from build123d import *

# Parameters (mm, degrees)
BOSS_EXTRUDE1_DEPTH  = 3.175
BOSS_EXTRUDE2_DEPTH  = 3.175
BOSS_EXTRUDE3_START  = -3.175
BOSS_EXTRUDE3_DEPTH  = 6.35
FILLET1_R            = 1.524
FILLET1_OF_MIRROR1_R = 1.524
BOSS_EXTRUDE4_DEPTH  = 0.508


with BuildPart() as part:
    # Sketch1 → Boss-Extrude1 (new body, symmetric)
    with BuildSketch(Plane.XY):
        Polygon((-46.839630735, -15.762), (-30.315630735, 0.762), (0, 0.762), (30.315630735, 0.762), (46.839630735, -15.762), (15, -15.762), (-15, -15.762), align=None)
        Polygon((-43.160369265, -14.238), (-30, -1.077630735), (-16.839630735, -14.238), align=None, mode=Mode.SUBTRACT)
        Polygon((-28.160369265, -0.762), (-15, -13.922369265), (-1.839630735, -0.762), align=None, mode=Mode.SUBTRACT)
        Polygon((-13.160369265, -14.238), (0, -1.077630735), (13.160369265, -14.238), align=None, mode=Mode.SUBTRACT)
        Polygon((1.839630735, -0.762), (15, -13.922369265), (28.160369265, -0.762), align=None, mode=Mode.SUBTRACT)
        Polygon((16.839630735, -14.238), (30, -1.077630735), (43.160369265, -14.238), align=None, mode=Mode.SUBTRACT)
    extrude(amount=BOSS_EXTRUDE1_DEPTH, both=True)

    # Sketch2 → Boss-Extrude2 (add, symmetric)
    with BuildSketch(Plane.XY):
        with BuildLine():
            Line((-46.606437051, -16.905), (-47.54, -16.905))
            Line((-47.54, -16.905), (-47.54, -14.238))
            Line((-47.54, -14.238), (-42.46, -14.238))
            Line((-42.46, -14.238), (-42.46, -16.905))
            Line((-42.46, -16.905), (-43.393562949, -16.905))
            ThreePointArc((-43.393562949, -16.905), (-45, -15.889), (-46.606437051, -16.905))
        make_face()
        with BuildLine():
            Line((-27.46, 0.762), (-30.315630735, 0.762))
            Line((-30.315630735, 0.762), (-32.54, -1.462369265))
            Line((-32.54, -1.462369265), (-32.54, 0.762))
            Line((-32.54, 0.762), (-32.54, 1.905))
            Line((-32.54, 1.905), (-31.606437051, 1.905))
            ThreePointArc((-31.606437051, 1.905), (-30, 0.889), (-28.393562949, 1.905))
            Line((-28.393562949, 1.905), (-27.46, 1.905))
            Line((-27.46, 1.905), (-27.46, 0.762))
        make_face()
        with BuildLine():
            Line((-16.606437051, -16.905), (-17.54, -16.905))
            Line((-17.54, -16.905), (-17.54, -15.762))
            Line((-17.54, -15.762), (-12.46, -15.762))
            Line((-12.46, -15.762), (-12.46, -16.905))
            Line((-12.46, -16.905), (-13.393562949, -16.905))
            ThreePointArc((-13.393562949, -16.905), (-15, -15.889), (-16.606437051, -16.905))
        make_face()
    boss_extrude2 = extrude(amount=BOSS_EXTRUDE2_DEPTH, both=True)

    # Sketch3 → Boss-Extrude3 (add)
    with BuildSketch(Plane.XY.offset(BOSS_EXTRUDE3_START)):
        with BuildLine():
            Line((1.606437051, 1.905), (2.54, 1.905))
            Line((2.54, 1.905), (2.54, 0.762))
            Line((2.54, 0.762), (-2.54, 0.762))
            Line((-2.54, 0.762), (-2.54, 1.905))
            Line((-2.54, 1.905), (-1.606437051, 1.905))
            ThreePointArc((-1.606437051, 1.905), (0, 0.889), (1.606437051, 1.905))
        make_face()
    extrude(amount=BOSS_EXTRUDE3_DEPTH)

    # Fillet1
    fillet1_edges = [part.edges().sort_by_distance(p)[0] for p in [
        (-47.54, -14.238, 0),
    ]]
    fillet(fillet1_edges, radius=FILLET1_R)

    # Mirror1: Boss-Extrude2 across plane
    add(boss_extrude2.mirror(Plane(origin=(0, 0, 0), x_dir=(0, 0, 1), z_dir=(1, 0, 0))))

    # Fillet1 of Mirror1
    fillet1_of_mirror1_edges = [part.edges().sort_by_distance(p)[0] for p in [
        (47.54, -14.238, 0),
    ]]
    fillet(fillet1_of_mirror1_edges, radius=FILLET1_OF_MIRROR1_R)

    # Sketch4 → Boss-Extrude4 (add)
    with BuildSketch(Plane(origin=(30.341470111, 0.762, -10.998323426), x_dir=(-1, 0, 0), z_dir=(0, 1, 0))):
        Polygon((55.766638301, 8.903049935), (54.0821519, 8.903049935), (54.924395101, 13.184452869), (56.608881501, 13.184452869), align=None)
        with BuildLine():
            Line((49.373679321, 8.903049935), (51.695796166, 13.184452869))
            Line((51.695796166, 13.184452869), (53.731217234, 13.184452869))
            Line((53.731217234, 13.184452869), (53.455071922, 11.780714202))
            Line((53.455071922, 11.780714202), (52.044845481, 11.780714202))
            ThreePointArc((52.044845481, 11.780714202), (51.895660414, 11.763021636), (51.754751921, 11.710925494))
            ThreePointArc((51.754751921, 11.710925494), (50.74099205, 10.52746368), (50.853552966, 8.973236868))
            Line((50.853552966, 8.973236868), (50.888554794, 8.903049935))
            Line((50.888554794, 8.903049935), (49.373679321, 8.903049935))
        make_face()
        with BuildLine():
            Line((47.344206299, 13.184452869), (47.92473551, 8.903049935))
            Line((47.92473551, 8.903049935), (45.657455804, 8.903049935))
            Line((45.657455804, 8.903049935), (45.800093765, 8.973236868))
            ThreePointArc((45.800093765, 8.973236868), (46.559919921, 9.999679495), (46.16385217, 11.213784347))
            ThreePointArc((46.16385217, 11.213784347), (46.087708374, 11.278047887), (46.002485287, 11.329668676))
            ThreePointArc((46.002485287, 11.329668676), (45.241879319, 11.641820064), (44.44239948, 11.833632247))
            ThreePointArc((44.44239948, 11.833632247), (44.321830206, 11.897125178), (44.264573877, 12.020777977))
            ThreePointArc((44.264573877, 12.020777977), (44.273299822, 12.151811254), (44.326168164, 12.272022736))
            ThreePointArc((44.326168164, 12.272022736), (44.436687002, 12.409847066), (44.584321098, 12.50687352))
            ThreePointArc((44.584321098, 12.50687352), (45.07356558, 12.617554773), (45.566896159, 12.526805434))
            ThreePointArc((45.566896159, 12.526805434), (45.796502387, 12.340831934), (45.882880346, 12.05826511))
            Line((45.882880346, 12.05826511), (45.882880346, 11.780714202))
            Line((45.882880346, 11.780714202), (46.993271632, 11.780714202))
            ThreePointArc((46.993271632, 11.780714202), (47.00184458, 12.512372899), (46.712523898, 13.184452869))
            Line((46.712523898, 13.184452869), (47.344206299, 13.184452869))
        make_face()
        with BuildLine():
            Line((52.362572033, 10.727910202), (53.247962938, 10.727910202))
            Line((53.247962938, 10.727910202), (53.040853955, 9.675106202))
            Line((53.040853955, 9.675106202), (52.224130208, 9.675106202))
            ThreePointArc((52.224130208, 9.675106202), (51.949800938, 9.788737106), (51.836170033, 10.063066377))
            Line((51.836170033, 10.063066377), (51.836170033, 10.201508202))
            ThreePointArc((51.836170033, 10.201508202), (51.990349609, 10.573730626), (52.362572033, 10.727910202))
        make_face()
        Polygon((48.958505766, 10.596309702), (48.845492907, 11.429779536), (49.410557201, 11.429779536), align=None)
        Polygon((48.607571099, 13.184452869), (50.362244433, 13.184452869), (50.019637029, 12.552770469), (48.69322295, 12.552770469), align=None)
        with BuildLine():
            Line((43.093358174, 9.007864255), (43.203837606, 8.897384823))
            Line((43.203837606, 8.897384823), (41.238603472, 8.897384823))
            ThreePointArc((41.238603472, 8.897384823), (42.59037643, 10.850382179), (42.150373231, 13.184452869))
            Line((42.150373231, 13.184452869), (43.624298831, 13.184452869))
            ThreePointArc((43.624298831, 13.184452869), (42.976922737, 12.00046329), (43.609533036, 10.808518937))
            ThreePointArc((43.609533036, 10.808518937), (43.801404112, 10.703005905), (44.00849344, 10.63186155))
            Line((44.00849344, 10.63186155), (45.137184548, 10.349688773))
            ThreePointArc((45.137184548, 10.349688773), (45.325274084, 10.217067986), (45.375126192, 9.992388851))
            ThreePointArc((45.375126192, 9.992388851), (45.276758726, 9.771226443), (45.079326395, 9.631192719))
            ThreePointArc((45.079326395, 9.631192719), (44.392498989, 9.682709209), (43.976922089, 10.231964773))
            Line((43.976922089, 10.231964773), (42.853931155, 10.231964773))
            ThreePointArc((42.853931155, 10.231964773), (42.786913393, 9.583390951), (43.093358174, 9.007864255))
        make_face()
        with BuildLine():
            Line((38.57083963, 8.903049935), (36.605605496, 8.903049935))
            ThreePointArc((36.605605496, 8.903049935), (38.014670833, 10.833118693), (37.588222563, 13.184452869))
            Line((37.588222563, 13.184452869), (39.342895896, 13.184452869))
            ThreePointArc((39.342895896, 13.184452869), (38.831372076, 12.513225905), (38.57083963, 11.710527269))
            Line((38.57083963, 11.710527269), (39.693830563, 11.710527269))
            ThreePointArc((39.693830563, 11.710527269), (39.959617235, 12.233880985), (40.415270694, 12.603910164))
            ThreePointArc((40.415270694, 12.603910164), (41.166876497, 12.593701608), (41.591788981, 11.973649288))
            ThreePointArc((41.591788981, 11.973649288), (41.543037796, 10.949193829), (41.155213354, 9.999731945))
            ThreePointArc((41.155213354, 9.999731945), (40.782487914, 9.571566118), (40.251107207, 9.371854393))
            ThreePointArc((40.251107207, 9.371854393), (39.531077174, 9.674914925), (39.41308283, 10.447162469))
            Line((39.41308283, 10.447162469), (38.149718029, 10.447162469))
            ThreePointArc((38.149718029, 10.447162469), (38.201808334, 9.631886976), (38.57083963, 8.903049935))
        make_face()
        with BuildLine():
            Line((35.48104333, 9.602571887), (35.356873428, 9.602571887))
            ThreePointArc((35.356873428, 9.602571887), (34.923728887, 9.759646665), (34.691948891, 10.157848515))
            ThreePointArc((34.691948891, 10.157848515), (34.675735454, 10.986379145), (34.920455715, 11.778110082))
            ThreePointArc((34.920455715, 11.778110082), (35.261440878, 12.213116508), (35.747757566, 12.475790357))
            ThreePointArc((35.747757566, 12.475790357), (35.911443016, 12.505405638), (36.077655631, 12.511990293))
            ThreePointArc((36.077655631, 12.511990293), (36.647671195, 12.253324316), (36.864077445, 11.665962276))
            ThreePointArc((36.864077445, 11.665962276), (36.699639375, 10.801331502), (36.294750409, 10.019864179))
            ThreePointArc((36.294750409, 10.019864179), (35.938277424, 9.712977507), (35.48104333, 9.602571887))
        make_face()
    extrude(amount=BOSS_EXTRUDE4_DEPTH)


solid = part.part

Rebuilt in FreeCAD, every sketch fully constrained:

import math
import FreeCAD as App
import Part
import Sketcher

V = App.Vector
Q = App.Units.Quantity


def edges_at(feature, points):
    """Names of the edges that pass closest to the given points."""
    edges = feature.Shape.Edges
    near = lambda p: min(range(len(edges)), key=lambda i: edges[i].distToShape(Part.Vertex(*p))[0])
    return sorted({f"Edge{near(p) + 1}" for p in points})

doc = App.newDocument("Part")
params = doc.addObject("Spreadsheet::Sheet", "Params")
for row, (alias, value) in enumerate([
    ("pad1_length", "0.25 in"),
    ("sketch2_radius", "0.07 in"),
    ("sketch2_width", "0.2 in"),
    ("sketch2_height", "0.105 in"),
    ("sketch2_height2", "0.045 in"),
    ("pad2_length", "0.25 in"),
    ("sketch3_radius", "0.07 in"),
    ("sketch3_width", "0.2 in"),
    ("sketch3_height", "0.045 in"),
    ("pad3_length", "0.25 in"),
    ("fillet_radius", "0.06 in"),
    ("fillet2_radius", "0.06 in"),
    ("pad4_length", "0.02 in"),
], start=1):
    params.set(f"A{row}", alias)
    params.set(f"B{row}", "=" + value)
    params.setAlias(f"B{row}", alias)

body = doc.addObject("PartDesign::Body", "Body")

# Sketch on XY plane
sketch1 = body.newObject("Sketcher::SketchObject", "Sketch")
sketch1.AttachmentSupport = (doc.getObject("XY_Plane"), [""])
sketch1.MapMode = "FlatFace"
sketch1.addGeometry([
    Part.LineSegment(V(-30, 1, 0), V(-47, -16, 0)),  # 0
    Part.LineSegment(V(-47, -16, 0), V(47, -16, 0)),  # 1
    Part.LineSegment(V(47, -16, 0), V(30, 1, 0)),  # 2
    Part.LineSegment(V(30, 1, 0), V(-30, 1, 0)),  # 3
    Part.LineSegment(V(17, -14, 0), V(30, -1, 0)),  # 4
    Part.LineSegment(V(30, -1, 0), V(43, -14, 0)),  # 5
    Part.LineSegment(V(43, -14, 0), V(17, -14, 0)),  # 6
    Part.LineSegment(V(-13, -14, 0), V(0, -1, 0)),  # 7
    Part.LineSegment(V(0, -1, 0), V(13, -14, 0)),  # 8
    Part.LineSegment(V(13, -14, 0), V(-13, -14, 0)),  # 9
    Part.LineSegment(V(-43, -14, 0), V(-30, -1, 0)),  # 10
    Part.LineSegment(V(-30, -1, 0), V(-17, -14, 0)),  # 11
    Part.LineSegment(V(-17, -14, 0), V(-43, -14, 0)),  # 12
    Part.LineSegment(V(2, -1, 0), V(28, -1, 0)),  # 13
    Part.LineSegment(V(28, -1, 0), V(15, -14, 0)),  # 14
    Part.LineSegment(V(15, -14, 0), V(2, -1, 0)),  # 15
    Part.LineSegment(V(-28, -1, 0), V(-2, -1, 0)),  # 16
    Part.LineSegment(V(-2, -1, 0), V(-15, -14, 0)),  # 17
    Part.LineSegment(V(-15, -14, 0), V(-28, -1, 0)),  # 18
], False)
sketch1.addConstraint([
    Sketcher.Constraint("Coincident", 0, 2, 1, 1),
    Sketcher.Constraint("Coincident", 1, 2, 2, 1),
    Sketcher.Constraint("Coincident", 2, 2, 3, 1),
    Sketcher.Constraint("Coincident", 3, 2, 0, 1),
    Sketcher.Constraint("Coincident", 4, 2, 5, 1),
    Sketcher.Constraint("Coincident", 5, 2, 6, 1),
    Sketcher.Constraint("Coincident", 6, 2, 4, 1),
    Sketcher.Constraint("Coincident", 7, 2, 8, 1),
    Sketcher.Constraint("Coincident", 8, 2, 9, 1),
    Sketcher.Constraint("Coincident", 9, 2, 7, 1),
    Sketcher.Constraint("Coincident", 10, 2, 11, 1),
    Sketcher.Constraint("Coincident", 11, 2, 12, 1),
    Sketcher.Constraint("Coincident", 12, 2, 10, 1),
    Sketcher.Constraint("Coincident", 13, 2, 14, 1),
    Sketcher.Constraint("Coincident", 14, 2, 15, 1),
    Sketcher.Constraint("Coincident", 15, 2, 13, 1),
    Sketcher.Constraint("Coincident", 16, 2, 17, 1),
    Sketcher.Constraint("Coincident", 17, 2, 18, 1),
    Sketcher.Constraint("Coincident", 18, 2, 16, 1),
    Sketcher.Constraint("Horizontal", 1),
    Sketcher.Constraint("Horizontal", 3),
    Sketcher.Constraint("Horizontal", 6),
    Sketcher.Constraint("Horizontal", 9),
    Sketcher.Constraint("Horizontal", 12),
    Sketcher.Constraint("Horizontal", 13),
    Sketcher.Constraint("Horizontal", 16),
    Sketcher.Constraint("Symmetric", 4, 2, 10, 2, -2),
    Sketcher.Constraint("Symmetric", 6, 2, 11, 2, -2),
    Sketcher.Constraint("Symmetric", 15, 2, 16, 2, -2),
    Sketcher.Constraint("Symmetric", 14, 2, 17, 2, -2),
    Sketcher.Constraint("PointOnObject", 7, 2, -2),
    Sketcher.Constraint("Perpendicular", 0, 2),
    Sketcher.Constraint("Perpendicular", 2, 4),
    Sketcher.Constraint("Perpendicular", 4, 5),
    Sketcher.Constraint("Perpendicular", 5, 7),
    Sketcher.Constraint("Perpendicular", 7, 8),
    Sketcher.Constraint("Perpendicular", 8, 10),
    Sketcher.Constraint("Perpendicular", 10, 11),
    Sketcher.Constraint("Perpendicular", 11, 14),
    Sketcher.Constraint("Perpendicular", 14, 15),
    Sketcher.Constraint("Perpendicular", 17, 18),
    Sketcher.Constraint("Horizontal", 4, 2, 7, 2),
    Sketcher.Constraint("Horizontal", 6, 2, 8, 2),
    Sketcher.Constraint("Equal", 12, 13),
    Sketcher.Constraint("DistanceY", -1, 1, 2, 2, Q("0.03 in")),
    Sketcher.Constraint("DistanceY", 13, 2, -1, 1, Q("0.03 in")),
    Sketcher.Constraint("DistanceY", 1, 2, 5, 2, Q("0.06 in")),
    Sketcher.Constraint("DistanceX", 1, 1, 1, 2, 93.679261),
    Sketcher.Constraint("DistanceX", 3, 2, 3, 1, 60.631261),
    Sketcher.Constraint("DistanceX", 6, 2, 6, 1, 26.320739),
    Sketcher.Constraint("DistanceX", -1, 1, 4, 2, 30.0),
    Sketcher.Constraint("DistanceX", -1, 1, 14, 2, 15.0),
    Sketcher.Constraint("DistanceX", 3, 2, 5, 2, 73.476),
])
pad1 = body.newObject("PartDesign::Pad", "Pad")
pad1.Profile = sketch1
pad1.setExpression("Length", "Params.pad1_length")
pad1.Midplane = True

# Sketch on XY plane
sketch2 = body.newObject("Sketcher::SketchObject", "Sketch001")
sketch2.AttachmentSupport = (doc.getObject("XY_Plane"), [""])
sketch2.MapMode = "FlatFace"
sketch2.addGeometry([
    Part.LineSegment(V(-47.5, -16.9, 0), V(-46.6, -16.9, 0)),  # 0
    Part.ArcOfCircle(Part.Circle(V(-45, -17.7, 0), V(0, 0, 1), 1.8), math.radians(25), math.radians(155)),  # 1
    Part.LineSegment(V(-43.4, -16.9, 0), V(-42.5, -16.9, 0)),  # 2
    Part.LineSegment(V(-42.5, -16.9, 0), V(-42.5, -14.2, 0)),  # 3
    Part.LineSegment(V(-42.5, -14.2, 0), V(-47.5, -14.2, 0)),  # 4
    Part.LineSegment(V(-47.5, -14.2, 0), V(-47.5, -16.9, 0)),  # 5
    Part.LineSegment(V(-30.3, 0.8, 0), V(-27.5, 0.8, 0)),  # 6
    Part.LineSegment(V(-27.5, 0.8, 0), V(-27.5, 1.9, 0)),  # 7
    Part.LineSegment(V(-27.5, 1.9, 0), V(-28.4, 1.9, 0)),  # 8
    Part.ArcOfCircle(Part.Circle(V(-30, 2.7, 0), V(0, 0, 1), 1.8), math.radians(-155), math.radians(-25)),  # 9
    Part.LineSegment(V(-31.6, 1.9, 0), V(-32.5, 1.9, 0)),  # 10
    Part.LineSegment(V(-32.5, 1.9, 0), V(-32.5, -1.5, 0)),  # 11
    Part.LineSegment(V(-32.5, -1.5, 0), V(-30.3, 0.8, 0)),  # 12
    Part.LineSegment(V(-17.5, -16.9, 0), V(-16.6, -16.9, 0)),  # 13
    Part.ArcOfCircle(Part.Circle(V(-15, -17.7, 0), V(0, 0, 1), 1.8), math.radians(25), math.radians(155)),  # 14
    Part.LineSegment(V(-13.4, -16.9, 0), V(-12.5, -16.9, 0)),  # 15
    Part.LineSegment(V(-12.5, -16.9, 0), V(-12.5, -15.8, 0)),  # 16
    Part.LineSegment(V(-12.5, -15.8, 0), V(-17.5, -15.8, 0)),  # 17
    Part.LineSegment(V(-17.5, -15.8, 0), V(-17.5, -16.9, 0)),  # 18
], False)
sketch2.addConstraint([
    Sketcher.Constraint("Coincident", 0, 2, 1, 2),
    Sketcher.Constraint("Coincident", 1, 1, 2, 1),
    Sketcher.Constraint("Coincident", 2, 2, 3, 1),
    Sketcher.Constraint("Coincident", 3, 2, 4, 1),
    Sketcher.Constraint("Coincident", 4, 2, 5, 1),
    Sketcher.Constraint("Coincident", 5, 2, 0, 1),
    Sketcher.Constraint("Coincident", 6, 2, 7, 1),
    Sketcher.Constraint("Coincident", 7, 2, 8, 1),
    Sketcher.Constraint("Coincident", 8, 2, 9, 2),
    Sketcher.Constraint("Coincident", 9, 1, 10, 1),
    Sketcher.Constraint("Coincident", 10, 2, 11, 1),
    Sketcher.Constraint("Coincident", 11, 2, 12, 1),
    Sketcher.Constraint("Coincident", 12, 2, 6, 1),
    Sketcher.Constraint("Coincident", 13, 2, 14, 2),
    Sketcher.Constraint("Coincident", 14, 1, 15, 1),
    Sketcher.Constraint("Coincident", 15, 2, 16, 1),
    Sketcher.Constraint("Coincident", 16, 2, 17, 1),
    Sketcher.Constraint("Coincident", 17, 2, 18, 1),
    Sketcher.Constraint("Coincident", 18, 2, 13, 1),
    Sketcher.Constraint("Horizontal", 0),
    Sketcher.Constraint("Horizontal", 2),
    Sketcher.Constraint("Vertical", 3),
    Sketcher.Constraint("Horizontal", 4),
    Sketcher.Constraint("Vertical", 5),
    Sketcher.Constraint("Horizontal", 6),
    Sketcher.Constraint("Vertical", 7),
    Sketcher.Constraint("Horizontal", 8),
    Sketcher.Constraint("Horizontal", 10),
    Sketcher.Constraint("Vertical", 11),
    Sketcher.Constraint("Horizontal", 13),
    Sketcher.Constraint("Horizontal", 15),
    Sketcher.Constraint("Vertical", 16),
    Sketcher.Constraint("Horizontal", 17),
    Sketcher.Constraint("Vertical", 18),
    Sketcher.Constraint("Equal", 1, 9),
    Sketcher.Constraint("Equal", 9, 14),
    Sketcher.Constraint("Horizontal", 1, 3, 14, 3),
    Sketcher.Constraint("Horizontal", 0, 2, 1, 1),
    Sketcher.Constraint("Horizontal", 8, 2, 9, 1),
    Sketcher.Constraint("Horizontal", 5, 2, 13, 2),
    Sketcher.Constraint("Horizontal", 13, 2, 14, 1),
    Sketcher.Constraint("Equal", 0, 2),
    Sketcher.Constraint("Equal", 2, 8),
    Sketcher.Constraint("Equal", 8, 10),
    Sketcher.Constraint("Equal", 10, 13),
    Sketcher.Constraint("Equal", 13, 15),
    Sketcher.Constraint("Equal", 7, 16),
    Sketcher.Constraint("Radius", 1, Q("0.07 in")),
    Sketcher.Constraint("DistanceX", 4, 2, 4, 1, Q("0.2 in")),
    Sketcher.Constraint("Angle", 12, Q("45 deg")),
    Sketcher.Constraint("DistanceX", 9, 3, 6, 2, Q("0.1 in")),
    Sketcher.Constraint("DistanceY", 3, 1, 3, 2, Q("0.105 in")),
    Sketcher.Constraint("DistanceY", 7, 1, 7, 2, Q("0.045 in")),
    Sketcher.Constraint("DistanceY", -1, 1, 6, 2, Q("0.03 in")),
    Sketcher.Constraint("DistanceY", 1, 3, 0, 2, Q("0.03 in")),
    Sketcher.Constraint("DistanceX", 6, 1, 6, 2, 2.855631),
    Sketcher.Constraint("DistanceX", 1, 3, -1, 1, 45.0),
    Sketcher.Constraint("DistanceY", 1, 3, -1, 1, 17.667),
    Sketcher.Constraint("DistanceX", 9, 3, -1, 1, 30.0),
    Sketcher.Constraint("DistanceX", 14, 3, -1, 1, 15.0),
])
sketch2.setExpression("Constraints[47]", "Params.sketch2_radius")
sketch2.setExpression("Constraints[48]", "Params.sketch2_width")
sketch2.setExpression("Constraints[51]", "Params.sketch2_height")
sketch2.setExpression("Constraints[52]", "Params.sketch2_height2")
pad2 = body.newObject("PartDesign::Pad", "Pad001")
pad2.Profile = sketch2
pad2.setExpression("Length", "Params.pad2_length")
pad2.Midplane = True

# Sketch on XY plane
sketch3 = body.newObject("Sketcher::SketchObject", "Sketch002")
sketch3.AttachmentSupport = (doc.getObject("XY_Plane"), [""])
sketch3.MapMode = "FlatFace"
sketch3.AttachmentOffset = App.Placement(V(0, 0, -0.125 * 25.4), App.Rotation())
sketch3.addGeometry([
    Part.LineSegment(V(2.5, 1.9, 0), V(1.6, 1.9, 0)),  # 0
    Part.ArcOfCircle(Part.Circle(V(0, 2.7, 0), V(0, 0, 1), 1.8), math.radians(-155), math.radians(-25)),  # 1
    Part.LineSegment(V(-1.6, 1.9, 0), V(-2.5, 1.9, 0)),  # 2
    Part.LineSegment(V(-2.5, 1.9, 0), V(-2.5, 0.8, 0)),  # 3
    Part.LineSegment(V(-2.5, 0.8, 0), V(2.5, 0.8, 0)),  # 4
    Part.LineSegment(V(2.5, 0.8, 0), V(2.5, 1.9, 0)),  # 5
], False)
sketch3.addConstraint([
    Sketcher.Constraint("Coincident", 0, 2, 1, 2),
    Sketcher.Constraint("Coincident", 1, 1, 2, 1),
    Sketcher.Constraint("Coincident", 2, 2, 3, 1),
    Sketcher.Constraint("Coincident", 3, 2, 4, 1),
    Sketcher.Constraint("Coincident", 4, 2, 5, 1),
    Sketcher.Constraint("Coincident", 5, 2, 0, 1),
    Sketcher.Constraint("Horizontal", 0),
    Sketcher.Constraint("Horizontal", 2),
    Sketcher.Constraint("Vertical", 3),
    Sketcher.Constraint("Horizontal", 4),
    Sketcher.Constraint("Vertical", 5),
    Sketcher.Constraint("Symmetric", 0, 2, 1, 1, -2),
    Sketcher.Constraint("Equal", 0, 2),
    Sketcher.Constraint("Radius", 1, Q("0.07 in")),
    Sketcher.Constraint("DistanceX", 4, 1, 4, 2, Q("0.2 in")),
    Sketcher.Constraint("DistanceY", 3, 2, 3, 1, Q("0.045 in")),
    Sketcher.Constraint("DistanceY", -1, 1, 3, 2, Q("0.03 in")),
    Sketcher.Constraint("DistanceY", 0, 2, 1, 3, Q("0.03 in")),
])
sketch3.setExpression("Constraints[13]", "Params.sketch3_radius")
sketch3.setExpression("Constraints[14]", "Params.sketch3_width")
sketch3.setExpression("Constraints[15]", "Params.sketch3_height")
pad3 = body.newObject("PartDesign::Pad", "Pad002")
pad3.Profile = sketch3
pad3.setExpression("Length", "Params.pad3_length")
doc.recompute()

fillet = body.newObject("PartDesign::Fillet", "Fillet")
fillet.Base = (pad3, edges_at(pad3, [(-47.54, -14.238, 0)]))
fillet.setExpression("Radius", "Params.fillet_radius")
doc.recompute()

mirrored = body.newObject("PartDesign::Mirrored", "Mirrored")
mirrored.Originals = [pad2]
mirrored.MirrorPlane = (doc.getObject("YZ_Plane"), [""])
body.Tip = mirrored
doc.recompute()

fillet2 = body.newObject("PartDesign::Fillet", "Fillet001")
fillet2.Base = (mirrored, edges_at(mirrored, [(47.54, -14.238, 0)]))
fillet2.setExpression("Radius", "Params.fillet2_radius")

# Sketch on XZ plane
sketch4 = body.newObject("Sketcher::SketchObject", "Sketch003")
sketch4.AttachmentSupport = (doc.getObject("XZ_Plane"), [""])
sketch4.MapMode = "FlatFace"
sketch4.AttachmentOffset = App.Placement(V(0, 0, -0.03 * 25.4), App.Rotation())
sketch4.addGeometry([
    Part.LineSegment(V(-23.740682, -2.095273, 0), V(-25.425168, -2.095273, 0)),  # 0
    Part.LineSegment(V(-25.425168, -2.095273, 0), V(-26.267411, 2.186129, 0)),  # 1
    Part.LineSegment(V(-26.267411, 2.186129, 0), V(-24.582925, 2.186129, 0)),  # 2
    Part.LineSegment(V(-24.582925, 2.186129, 0), V(-23.740682, -2.095273, 0)),  # 3
    Part.LineSegment(V(-21.354326, 2.186129, 0), V(-19.032209, -2.095273, 0)),  # 4
    Part.LineSegment(V(-19.032209, -2.095273, 0), V(-20.547085, -2.095273, 0)),  # 5
    Part.LineSegment(V(-20.547085, -2.095273, 0), V(-20.512083, -2.025087, 0)),  # 6
    Part.ArcOfCircle(Part.Circle(V(-22.344691, -1.111175, 0), V(0, 0, 1), 2.047849), math.radians(-26.505174), math.radians(62.946445)),  # 7
    Part.ArcOfCircle(Part.Circle(V(-21.703375, 0.144575, 0), V(0, 0, 1), 0.637816), math.radians(62.946445), math.radians(90)),  # 8
    Part.LineSegment(V(-21.703375, 0.782391, 0), V(-23.113602, 0.782391, 0)),  # 9
    Part.LineSegment(V(-23.113602, 0.782391, 0), V(-23.389747, 2.186129, 0)),  # 10
    Part.LineSegment(V(-23.389747, 2.186129, 0), V(-21.354326, 2.186129, 0)),  # 11
    Part.LineSegment(V(-17.583265, -2.095273, 0), V(-17.002736, 2.186129, 0)),  # 12
    Part.LineSegment(V(-17.002736, 2.186129, 0), V(-16.371054, 2.186129, 0)),  # 13
    Part.ArcOfCircle(Part.Circle(V(-14.932222, 1.168419, 0), V(0, 0, 1), 1.762377), math.radians(144.727578), math.radians(192.652557)),  # 14
    Part.LineSegment(V(-16.651802, 0.782391, 0), V(-15.54141, 0.782391, 0)),  # 15
    Part.LineSegment(V(-15.54141, 0.782391, 0), V(-15.54141, 1.059942, 0)),  # 16
    Part.ArcOfCircle(Part.Circle(V(-15.036043, 1.059942, 0), V(0, 0, 1), 0.505367), math.radians(112.008448), math.radians(180)),  # 17
    Part.ArcOfCircle(Part.Circle(V(-14.757424, 0.370628, 0), V(0, 0, 1), 1.248861), math.radians(65.667337), math.radians(112.008448)),  # 18
    Part.ArcOfCircle(Part.Circle(V(-14.476007, 0.992952, 0), V(0, 0, 1), 0.565865), math.radians(29.744881), math.radians(65.667337)),  # 19
    Part.ArcOfCircle(Part.Circle(V(-14.300367, 1.063139, 0), V(0, 0, 1), 0.379451), math.radians(-6.154974), math.radians(33.704494)),  # 20
    Part.ArcOfCircle(Part.Circle(V(-14.134484, 1.04525, 0), V(0, 0, 1), 0.212605), math.radians(-80.919383), math.radians(-6.154974)),  # 21
    Part.ArcOfCircle(Part.Circle(V(-13.257336, -4.442853, 0), V(0, 0, 1), 5.345152), math.radians(99.080617), math.radians(116.724011)),  # 22
    Part.ArcOfCircle(Part.Circle(V(-15.374193, -0.238341, 0), V(0, 0, 1), 0.637816), math.radians(116.724012), math.radians(134.643415)),  # 23
    Part.ArcOfCircle(Part.Circle(V(-14.843725, -0.775454, 0), V(0, 0, 1), 1.392725), math.radians(134.643416), math.radians(243.799885)),  # 24
    Part.LineSegment(V(-15.458624, -2.025087, 0), V(-15.315986, -2.095273, 0)),  # 25
    Part.LineSegment(V(-15.315986, -2.095273, 0), V(-17.583265, -2.095273, 0)),  # 26
    Part.LineSegment(V(-22.906493, -0.270413, 0), V(-22.021102, -0.270413, 0)),  # 27
    Part.ArcOfCircle(Part.Circle(V(-22.021102, -0.796815, 0), V(0, 0, 1), 0.526402), math.radians(0), math.radians(90)),  # 28
    Part.LineSegment(V(-21.4947, -0.796815, 0), V(-21.4947, -0.935257, 0)),  # 29
    Part.ArcOfCircle(Part.Circle(V(-21.88266, -0.935257, 0), V(0, 0, 1), 0.38796), math.radians(-90), math.radians(0)),  # 30
    Part.LineSegment(V(-21.88266, -1.323217, 0), V(-22.699384, -1.323217, 0)),  # 31
    Part.LineSegment(V(-22.699384, -1.323217, 0), V(-22.906493, -0.270413, 0)),  # 32
    Part.LineSegment(V(-18.504023, 0.431456, 0), V(-18.617036, -0.402014, 0)),  # 33
    Part.LineSegment(V(-18.617036, -0.402014, 0), V(-19.069087, 0.431456, 0)),  # 34
    Part.LineSegment(V(-19.069087, 0.431456, 0), V(-18.504023, 0.431456, 0)),  # 35
    Part.LineSegment(V(-20.020774, 2.186129, 0), V(-18.266101, 2.186129, 0)),  # 36
    Part.LineSegment(V(-18.266101, 2.186129, 0), V(-18.351753, 1.554447, 0)),  # 37
    Part.LineSegment(V(-18.351753, 1.554447, 0), V(-19.678167, 1.554447, 0)),  # 38
    Part.LineSegment(V(-19.678167, 1.554447, 0), V(-20.020774, 2.186129, 0)),  # 39
    Part.LineSegment(V(-12.862367, -2.100939, 0), V(-12.751888, -1.990459, 0)),  # 40
    Part.ArcOfCircle(Part.Circle(V(-13.541869, -1.200478, 0), V(0, 0, 1), 1.117202), math.radians(-45), math.radians(22.865988)),  # 41
    Part.LineSegment(V(-12.512461, -0.766359, 0), V(-13.635452, -0.766359, 0)),  # 42
    Part.ArcOfCircle(Part.Circle(V(-14.451493, -0.580772, 0), V(0, 0, 1), 0.836878), math.radians(-110.009807), math.radians(-12.812494)),  # 43
    Part.ArcOfCircle(Part.Circle(V(-14.581287, -0.937189, 0), V(0, 0, 1), 0.457563), math.radians(-171.359007), math.radians(-110.009807)),  # 44
    Part.ArcOfCircle(Part.Circle(V(-14.718368, -0.958021, 0), V(0, 0, 1), 0.318908), math.radians(104.036243), math.radians(188.640993)),  # 45
    Part.LineSegment(V(-14.795714, -0.648635, 0), V(-13.667023, -0.366462, 0)),  # 46
    Part.ArcOfCircle(Part.Circle(V(-13.97641, 0.871083, 0), V(0, 0, 1), 1.275632), math.radians(-75.963757), math.radians(-56.269266)),  # 47
    Part.ArcOfCircle(Part.Circle(V(-14.058012, 0.993299, 0), V(0, 0, 1), 1.422587), math.radians(-56.269266), math.radians(56.981413)),  # 48
    Part.LineSegment(V(-13.282829, 2.186129, 0), V(-11.808903, 2.186129, 0)),  # 49
    Part.ArcOfCircle(Part.Circle(V(-9.236614, 0.49271, 0), V(0, 0, 1), 3.079665), math.radians(146.641829), math.radians(237.371605)),  # 50
    Part.LineSegment(V(-10.897133, -2.100939, 0), V(-12.862367, -2.100939, 0)),  # 51
    Part.LineSegment(V(-6.264135, -2.095273, 0), V(-8.22937, -2.095273, 0)),  # 52
    Part.ArcOfCircle(Part.Circle(V(-9.820273, -0.831909, 0), V(0, 0, 1), 2.031518), math.radians(-38.453709), math.radians(7.943472)),  # 53
    Part.LineSegment(V(-7.808248, -0.551161, 0), V(-9.071613, -0.551161, 0)),  # 54
    Part.ArcOfCircle(Part.Circle(V(-9.820273, -0.831909, 0), V(0, 0, 1), 0.79957), math.radians(-96.417058), math.radians(20.556045)),  # 55
    Part.ArcOfCircle(Part.Circle(V(-9.780148, -0.475145, 0), V(0, 0, 1), 1.158583), math.radians(-153.140833), math.radians(-96.417058)),  # 56
    Part.ArcOfCircle(Part.Circle(V(-8.244006, 0.605001, 0), V(0, 0, 1), 3.029036), math.radians(172.977541), math.radians(211.965387)),  # 57
    Part.ArcOfCircle(Part.Circle(V(-10.439756, 0.875479, 0), V(0, 0, 1), 0.816689), math.radians(63.378369), math.radians(172.977541)),  # 58
    Part.ArcOfCircle(Part.Circle(V(-10.716526, 0.348576, 0), V(0, 0, 1), 1.411797), math.radians(14.925561), math.radians(62.918785)),  # 59
    Part.LineSegment(V(-9.35236, 0.712204, 0), V(-8.22937, 0.712204, 0)),  # 60
    Part.ArcOfCircle(Part.Circle(V(-10.716526, 0.348576, 0), V(0, 0, 1), 2.513597), math.radians(8.317846), math.radians(46.974104)),  # 61
    Part.LineSegment(V(-9.001426, 2.186129, 0), V(-7.246752, 2.186129, 0)),  # 62
    Part.ArcOfCircle(Part.Circle(V(-4.71769, 0.513109, 0), V(0, 0, 1), 3.032351), math.radians(146.51465), math.radians(239.337349)),  # 63
    Part.LineSegment(V(-5.015403, -1.395752, 0), V(-5.139573, -1.395752, 0)),  # 64
    Part.ArcOfCircle(Part.Circle(V(-5.139573, -0.393754, 0), V(0, 0, 1), 1.001998), math.radians(-144.300101), math.radians(-90)),  # 65
    Part.ArcOfCircle(Part.Circle(V(-3.480809, 0.798185, 0), V(0, 0, 1), 3.044599), math.radians(-177.542518), math.radians(-144.300101)),  # 66
    Part.ArcOfCircle(Part.Circle(V(-5.711758, 0.702438, 0), V(0, 0, 1), 0.811596), math.radians(91.724781), math.radians(182.457482)),  # 67
    Part.ArcOfCircle(Part.Circle(V(-5.70024, 0.319933, 0), V(0, 0, 1), 1.194275), math.radians(75.751117), math.radians(91.724781)),  # 68
    Part.ArcOfCircle(Part.Circle(V(-5.793627, 0.178821, 0), V(0, 0, 1), 1.35518), math.radians(26.324731), math.radians(73.392052)),  # 69
    Part.ArcOfCircle(Part.Circle(V(-6.914743, -0.375871, 0), V(0, 0, 1), 2.606013), math.radians(-10.269674), math.radians(26.324731)),  # 70
    Part.ArcOfCircle(Part.Circle(V(-5.015403, -0.720001, 0), V(0, 0, 1), 0.67575), math.radians(-90), math.radians(-10.269674)),  # 71
], False)
sketch4.addConstraint([
    Sketcher.Constraint("Coincident", 0, 2, 1, 1),
    Sketcher.Constraint("Coincident", 1, 2, 2, 1),
    Sketcher.Constraint("Coincident", 2, 2, 3, 1),
    Sketcher.Constraint("Coincident", 3, 2, 0, 1),
    Sketcher.Constraint("Coincident", 4, 2, 5, 1),
    Sketcher.Constraint("Coincident", 5, 2, 6, 1),
    Sketcher.Constraint("Coincident", 6, 2, 7, 1),
    Sketcher.Constraint("Coincident", 7, 2, 8, 1),
    Sketcher.Constraint("Coincident", 8, 2, 9, 1),
    Sketcher.Constraint("Coincident", 9, 2, 10, 1),
    Sketcher.Constraint("Coincident", 10, 2, 11, 1),
    Sketcher.Constraint("Coincident", 11, 2, 4, 1),
    Sketcher.Constraint("Coincident", 12, 2, 13, 1),
    Sketcher.Constraint("Coincident", 13, 2, 14, 1),
    Sketcher.Constraint("Coincident", 14, 2, 15, 1),
    Sketcher.Constraint("Coincident", 15, 2, 16, 1),
    Sketcher.Constraint("Coincident", 16, 2, 17, 2),
    Sketcher.Constraint("Coincident", 17, 1, 18, 2),
    Sketcher.Constraint("Coincident", 18, 1, 19, 2),
    Sketcher.Constraint("Coincident", 19, 1, 20, 2),
    Sketcher.Constraint("Coincident", 20, 1, 21, 2),
    Sketcher.Constraint("Coincident", 21, 1, 22, 1),
    Sketcher.Constraint("Coincident", 22, 2, 23, 1),
    Sketcher.Constraint("Coincident", 23, 2, 24, 1),
    Sketcher.Constraint("Coincident", 24, 2, 25, 1),
    Sketcher.Constraint("Coincident", 25, 2, 26, 1),
    Sketcher.Constraint("Coincident", 26, 2, 12, 1),
    Sketcher.Constraint("Coincident", 27, 2, 28, 2),
    Sketcher.Constraint("Coincident", 28, 1, 29, 1),
    Sketcher.Constraint("Coincident", 29, 2, 30, 2),
    Sketcher.Constraint("Coincident", 30, 1, 31, 1),
    Sketcher.Constraint("Coincident", 31, 2, 32, 1),
    Sketcher.Constraint("Coincident", 32, 2, 27, 1),
    Sketcher.Constraint("Coincident", 33, 2, 34, 1),
    Sketcher.Constraint("Coincident", 34, 2, 35, 1),
    Sketcher.Constraint("Coincident", 35, 2, 33, 1),
    Sketcher.Constraint("Coincident", 36, 2, 37, 1),
    Sketcher.Constraint("Coincident", 37, 2, 38, 1),
    Sketcher.Constraint("Coincident", 38, 2, 39, 1),
    Sketcher.Constraint("Coincident", 39, 2, 36, 1),
    Sketcher.Constraint("Coincident", 40, 2, 41, 1),
    Sketcher.Constraint("Coincident", 41, 2, 42, 1),
    Sketcher.Constraint("Coincident", 42, 2, 43, 2),
    Sketcher.Constraint("Coincident", 43, 1, 44, 2),
    Sketcher.Constraint("Coincident", 44, 1, 45, 2),
    Sketcher.Constraint("Coincident", 45, 1, 46, 1),
    Sketcher.Constraint("Coincident", 46, 2, 47, 1),
    Sketcher.Constraint("Coincident", 47, 2, 48, 1),
    Sketcher.Constraint("Coincident", 48, 2, 49, 1),
    Sketcher.Constraint("Coincident", 49, 2, 50, 1),
    Sketcher.Constraint("Coincident", 50, 2, 51, 1),
    Sketcher.Constraint("Coincident", 51, 2, 40, 1),
    Sketcher.Constraint("Coincident", 52, 2, 53, 1),
    Sketcher.Constraint("Coincident", 53, 2, 54, 1),
    Sketcher.Constraint("Coincident", 54, 2, 55, 2),
    Sketcher.Constraint("Coincident", 55, 1, 56, 2),
    Sketcher.Constraint("Coincident", 56, 1, 57, 2),
    Sketcher.Constraint("Coincident", 57, 1, 58, 2),
    Sketcher.Constraint("Coincident", 58, 1, 59, 2),
    Sketcher.Constraint("Coincident", 59, 1, 60, 1),
    Sketcher.Constraint("Coincident", 60, 2, 61, 1),
    Sketcher.Constraint("Coincident", 61, 2, 62, 1),
    Sketcher.Constraint("Coincident", 62, 2, 63, 1),
    Sketcher.Constraint("Coincident", 63, 2, 52, 1),
    Sketcher.Constraint("Coincident", 64, 2, 65, 2),
    Sketcher.Constraint("Coincident", 65, 1, 66, 2),
    Sketcher.Constraint("Coincident", 66, 1, 67, 2),
    Sketcher.Constraint("Coincident", 67, 1, 68, 2),
    Sketcher.Constraint("Coincident", 68, 1, 69, 2),
    Sketcher.Constraint("Coincident", 69, 1, 70, 2),
    Sketcher.Constraint("Coincident", 70, 1, 71, 2),
    Sketcher.Constraint("Coincident", 71, 1, 64, 1),
    Sketcher.Constraint("Horizontal", 0),
    Sketcher.Constraint("Horizontal", 2),
    Sketcher.Constraint("Horizontal", 5),
    Sketcher.Constraint("Horizontal", 9),
    Sketcher.Constraint("Horizontal", 11),
    Sketcher.Constraint("Horizontal", 13),
    Sketcher.Constraint("Horizontal", 15),
    Sketcher.Constraint("Vertical", 16),
    Sketcher.Constraint("Horizontal", 26),
    Sketcher.Constraint("Horizontal", 27),
    Sketcher.Constraint("Vertical", 29),
    Sketcher.Constraint("Horizontal", 31),
    Sketcher.Constraint("Horizontal", 35),
    Sketcher.Constraint("Horizontal", 36),
    Sketcher.Constraint("Horizontal", 38),
    Sketcher.Constraint("Horizontal", 42),
    Sketcher.Constraint("Horizontal", 49),
    Sketcher.Constraint("Horizontal", 51),
    Sketcher.Constraint("Horizontal", 52),
    Sketcher.Constraint("Horizontal", 54),
    Sketcher.Constraint("Horizontal", 60),
    Sketcher.Constraint("Horizontal", 62),
    Sketcher.Constraint("Horizontal", 64),
    Sketcher.Constraint("Coincident", 55, 3, 53, 3),
    Sketcher.Constraint("Coincident", 61, 3, 59, 3),
    Sketcher.Constraint("Radius", 28, 0.526402),
    Sketcher.Constraint("Radius", 66, 3.044599),
    Sketcher.Constraint("Radius", 7, 2.047849),
    Sketcher.Constraint("Radius", 18, 1.248861),
    Sketcher.Constraint("Radius", 20, 0.379451),
    Sketcher.Constraint("Radius", 22, 5.345152),
    Sketcher.Constraint("Radius", 30, 0.38796),
    Sketcher.Constraint("Radius", 45, 0.318908),
    Sketcher.Constraint("Radius", 53, 2.031518),
    Sketcher.Constraint("Radius", 55, 0.79957),
    Sketcher.Constraint("Radius", 58, 0.816689),
    Sketcher.Constraint("Radius", 63, 3.032351),
    Sketcher.Constraint("Radius", 69, 1.35518),
    Sketcher.Constraint("Radius", 71, 0.67575),
    Sketcher.Constraint("Radius", 8, 0.637816),
    Sketcher.Constraint("Radius", 14, 1.762377),
    Sketcher.Constraint("Radius", 17, 0.505367),
    Sketcher.Constraint("Radius", 19, 0.565865),
    Sketcher.Constraint("Radius", 21, 0.212605),
    Sketcher.Constraint("Radius", 23, 0.637816),
    Sketcher.Constraint("Radius", 24, 1.392725),
    Sketcher.Constraint("Radius", 41, 1.117202),
    Sketcher.Constraint("Radius", 43, 0.836878),
    Sketcher.Constraint("Radius", 44, 0.457563),
    Sketcher.Constraint("Radius", 47, 1.275632),
    Sketcher.Constraint("Radius", 48, 1.422587),
    Sketcher.Constraint("Radius", 50, 3.079665),
    Sketcher.Constraint("Radius", 56, 1.158583),
    Sketcher.Constraint("Radius", 57, 3.029036),
    Sketcher.Constraint("Radius", 59, 1.411797),
    Sketcher.Constraint("Radius", 61, 2.513597),
    Sketcher.Constraint("Radius", 65, 1.001998),
    Sketcher.Constraint("Radius", 67, 0.811596),
    Sketcher.Constraint("Radius", 68, 1.194275),
    Sketcher.Constraint("Radius", 70, 2.606013),
    Sketcher.Constraint("DistanceX", 11, 1, 11, 2, 2.035421),
    Sketcher.Constraint("DistanceX", 15, 1, 15, 2, 1.110391),
    Sketcher.Constraint("DistanceX", 26, 2, 26, 1, 2.26728),
    Sketcher.Constraint("DistanceX", 27, 1, 27, 2, 0.885391),
    Sketcher.Constraint("DistanceX", 42, 2, 42, 1, 1.122991),
    Sketcher.Constraint("DistanceX", 60, 1, 60, 2, 1.122991),
    Sketcher.Constraint("DistanceX", 64, 2, 64, 1, 0.12417),
    Sketcher.Constraint("DistanceY", 16, 1, 16, 2, 0.277551),
    Sketcher.Constraint("DistanceY", 29, 2, 29, 1, 0.138442),
    Sketcher.Constraint("DistanceX", 28, 3, -1, 1, 22.021102),
    Sketcher.Constraint("DistanceY", -1, 1, 48, 3, 0.993299),
    Sketcher.Constraint("DistanceY", -1, 1, 57, 3, 0.605001),
    Sketcher.Constraint("DistanceY", 71, 3, -1, 1, 0.720001),
    Sketcher.Constraint("DistanceX", 9, 2, -1, 1, 23.113602),
    Sketcher.Constraint("DistanceX", 14, 2, -1, 1, 16.651802),
    Sketcher.Constraint("DistanceX", 19, 1, -1, 1, 13.984698),
    Sketcher.Constraint("DistanceY", -1, 1, 19, 1, 1.273699),
    Sketcher.Constraint("DistanceX", 27, 2, -1, 1, 22.021102),
    Sketcher.Constraint("DistanceX", 36, 2, -1, 1, 18.266101),
    Sketcher.Constraint("DistanceX", 58, 1, -1, 1, 10.073801),
    Sketcher.Constraint("Distance", 1, 4.36346),
    Sketcher.Constraint("Distance", 3, 4.36346),
    Sketcher.Constraint("Distance", 4, 4.870589),
    Sketcher.Constraint("Distance", 6, 0.07843),
    Sketcher.Constraint("Distance", 12, 4.320582),
    Sketcher.Constraint("Distance", 25, 0.158971),
    Sketcher.Constraint("Distance", 39, 0.718611),
    Sketcher.Constraint("Distance", 40, 0.156242),
    Sketcher.Constraint("Distance", 46, 1.163428),
    Sketcher.Constraint("DistanceX", 0, 2, 0, 1, 1.684486),
    Sketcher.Constraint("DistanceX", 5, 2, 5, 1, 1.514875),
    Sketcher.Constraint("DistanceX", 9, 2, 9, 1, 1.410226),
    Sketcher.Constraint("DistanceX", 13, 1, 13, 2, 0.631682),
    Sketcher.Constraint("DistanceX", 31, 2, 31, 1, 0.816724),
    Sketcher.Constraint("DistanceX", 35, 1, 35, 2, 0.565064),
    Sketcher.Constraint("DistanceX", 36, 1, 36, 2, 1.754673),
    Sketcher.Constraint("DistanceX", 38, 2, 38, 1, 1.326414),
    Sketcher.Constraint("DistanceX", 49, 1, 49, 2, 1.473926),
    Sketcher.Constraint("DistanceX", 51, 2, 51, 1, 1.965234),
    Sketcher.Constraint("DistanceX", 52, 2, 52, 1, 1.965234),
    Sketcher.Constraint("DistanceX", 54, 2, 54, 1, 1.263365),
    Sketcher.Constraint("DistanceX", 62, 1, 62, 2, 1.754673),
    Sketcher.Constraint("DistanceX", 7, 3, -1, 1, 22.344691),
    Sketcher.Constraint("DistanceX", 14, 3, -1, 1, 14.932222),
    Sketcher.Constraint("DistanceY", -1, 1, 14, 3, 1.168419),
    Sketcher.Constraint("DistanceY", -1, 1, 17, 3, 1.059942),
    Sketcher.Constraint("DistanceY", -1, 1, 19, 3, 0.992952),
    Sketcher.Constraint("DistanceY", -1, 1, 20, 3, 1.063139),
    Sketcher.Constraint("DistanceY", -1, 1, 21, 3, 1.04525),
    Sketcher.Constraint("DistanceY", 23, 3, -1, 1, 0.238341),
    Sketcher.Constraint("DistanceX", 41, 3, -1, 1, 13.541869),
    Sketcher.Constraint("DistanceY", 43, 3, -1, 1, 0.580772),
    Sketcher.Constraint("DistanceY", 44, 3, -1, 1, 0.937189),
    Sketcher.Constraint("DistanceY", 45, 3, -1, 1, 0.958021),
    Sketcher.Constraint("DistanceX", 47, 3, -1, 1, 13.97641),
    Sketcher.Constraint("DistanceY", -1, 1, 50, 3, 0.49271),
    Sketcher.Constraint("DistanceY", 53, 3, -1, 1, 0.831909),
    Sketcher.Constraint("DistanceX", 56, 3, -1, 1, 9.780148),
    Sketcher.Constraint("DistanceY", -1, 1, 58, 3, 0.875479),
    Sketcher.Constraint("DistanceX", 63, 3, -1, 1, 4.71769),
    Sketcher.Constraint("DistanceY", -1, 1, 63, 3, 0.513109),
    Sketcher.Constraint("DistanceX", 66, 3, -1, 1, 3.480809),
    Sketcher.Constraint("DistanceY", -1, 1, 67, 3, 0.702438),
    Sketcher.Constraint("DistanceX", 68, 3, -1, 1, 5.70024),
    Sketcher.Constraint("DistanceY", -1, 1, 69, 3, 0.178821),
    Sketcher.Constraint("DistanceY", 70, 3, -1, 1, 0.375871),
    Sketcher.Constraint("DistanceX", 0, 2, -1, 1, 25.425168),
    Sketcher.Constraint("DistanceX", 1, 2, -1, 1, 26.267411),
    Sketcher.Constraint("DistanceY", -1, 1, 1, 2, 2.186129),
    Sketcher.Constraint("DistanceX", 4, 2, -1, 1, 19.032209),
    Sketcher.Constraint("DistanceX", 7, 2, -1, 1, 21.413282),
    Sketcher.Constraint("DistanceY", -1, 1, 8, 2, 0.782391),
    Sketcher.Constraint("DistanceY", -1, 1, 10, 2, 2.186129),
    Sketcher.Constraint("DistanceY", -1, 1, 12, 2, 2.186129),
    Sketcher.Constraint("DistanceX", 18, 1, -1, 1, 14.242851),
    Sketcher.Constraint("DistanceX", 21, 1, -1, 1, 14.100929),
    Sketcher.Constraint("DistanceY", -1, 1, 23, 2, 0.215461),
    Sketcher.Constraint("DistanceX", 30, 1, -1, 1, 21.88266),
    Sketcher.Constraint("DistanceY", -1, 1, 36, 2, 2.186129),
    Sketcher.Constraint("DistanceX", 40, 2, -1, 1, 12.751888),
    Sketcher.Constraint("DistanceY", 40, 2, -1, 1, 1.990459),
    Sketcher.Constraint("DistanceX", 41, 2, -1, 1, 12.512461),
    Sketcher.Constraint("DistanceY", 43, 1, -1, 1, 1.367131),
    Sketcher.Constraint("DistanceY", 46, 2, -1, 1, 0.366462),
    Sketcher.Constraint("DistanceX", 48, 2, -1, 1, 13.282829),
    Sketcher.Constraint("DistanceY", -1, 1, 48, 2, 2.186129),
    Sketcher.Constraint("DistanceX", 52, 2, -1, 1, 8.22937),
    Sketcher.Constraint("DistanceY", 55, 1, -1, 1, 1.626469),
    Sketcher.Constraint("DistanceY", 56, 1, -1, 1, 0.998591),
    Sketcher.Constraint("DistanceX", 57, 1, -1, 1, 11.250319),
    Sketcher.Constraint("DistanceX", 59, 1, -1, 1, 9.35236),
    Sketcher.Constraint("DistanceX", 65, 1, -1, 1, 5.95328),
    Sketcher.Constraint("DistanceY", 65, 1, -1, 1, 0.978459),
    Sketcher.Constraint("DistanceY", -1, 1, 66, 1, 0.667639),
    Sketcher.Constraint("DistanceX", 70, 1, -1, 1, 4.350479),
    Sketcher.Constraint("Distance", 10, 1.430643),
    Sketcher.Constraint("Distance", 32, 1.072982),
    Sketcher.Constraint("Distance", 33, 0.841097),
    Sketcher.Constraint("Distance", 34, 0.948168),
    Sketcher.Constraint("Distance", 37, 0.637463),
    Sketcher.Constraint("DistanceY", 7, 3, -1, 1, 1.111175),
    Sketcher.Constraint("DistanceX", 22, 3, -1, 1, 13.257336),
    Sketcher.Constraint("DistanceX", 24, 3, -1, 1, 14.843725),
    Sketcher.Constraint("DistanceY", 28, 3, -1, 1, 0.796815),
    Sketcher.Constraint("DistanceX", 69, 3, -1, 1, 5.793627),
    Sketcher.Constraint("DistanceX", 17, 1, -1, 1, 15.225426),
    Sketcher.Constraint("DistanceX", 20, 1, -1, 1, 13.923104),
    Sketcher.Constraint("DistanceX", 22, 2, -1, 1, 15.661015),
    Sketcher.Constraint("DistanceX", 24, 2, -1, 1, 15.458624),
    Sketcher.Constraint("DistanceY", 28, 1, -1, 1, 0.796815),
    Sketcher.Constraint("DistanceX", 33, 2, -1, 1, 18.617036),
    Sketcher.Constraint("DistanceY", 33, 2, -1, 1, 0.402014),
    Sketcher.Constraint("DistanceX", 44, 1, -1, 1, 15.033656),
    Sketcher.Constraint("DistanceX", 47, 2, -1, 1, 13.268063),
    Sketcher.Constraint("DistanceX", 64, 2, -1, 1, 5.139573),
    Sketcher.Constraint("DistanceX", 67, 1, -1, 1, 5.736186),
    Sketcher.Constraint("DistanceX", 69, 1, -1, 1, 4.578986),
])
pad4 = body.newObject("PartDesign::Pad", "Pad003")
pad4.Profile = sketch4
pad4.setExpression("Length", "Params.pad4_length")
pad4.Reversed = True

doc.recompute()
